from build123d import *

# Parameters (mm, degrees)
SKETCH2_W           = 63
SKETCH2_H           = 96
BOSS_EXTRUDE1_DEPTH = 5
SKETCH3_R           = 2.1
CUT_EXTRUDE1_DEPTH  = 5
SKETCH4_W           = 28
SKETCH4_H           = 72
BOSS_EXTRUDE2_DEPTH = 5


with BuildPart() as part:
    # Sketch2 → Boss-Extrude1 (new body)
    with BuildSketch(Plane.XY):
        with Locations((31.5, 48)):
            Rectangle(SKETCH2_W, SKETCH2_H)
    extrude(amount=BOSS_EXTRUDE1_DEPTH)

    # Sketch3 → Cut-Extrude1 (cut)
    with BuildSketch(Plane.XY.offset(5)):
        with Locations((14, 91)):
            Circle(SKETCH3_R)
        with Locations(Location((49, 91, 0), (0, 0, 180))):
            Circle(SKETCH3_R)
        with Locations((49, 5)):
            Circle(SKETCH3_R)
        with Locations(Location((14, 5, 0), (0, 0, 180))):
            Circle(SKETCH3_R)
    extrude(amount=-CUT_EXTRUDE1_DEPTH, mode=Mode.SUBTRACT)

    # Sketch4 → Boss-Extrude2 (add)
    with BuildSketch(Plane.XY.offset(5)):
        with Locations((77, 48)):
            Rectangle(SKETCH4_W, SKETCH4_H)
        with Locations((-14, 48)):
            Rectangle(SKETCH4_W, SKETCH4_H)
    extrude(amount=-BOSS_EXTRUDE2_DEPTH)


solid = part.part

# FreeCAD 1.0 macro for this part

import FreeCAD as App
import Part
import Sketcher
from FreeCAD import Vector
Q = App.Units.Quantity

doc = App.newDocument("Part")
body = doc.addObject("PartDesign::Body", "Body")

# Sketch on XY plane
sketch1 = doc.addObject("Sketcher::SketchObject", "Sketch")
body.addObject(sketch1)
sketch1.AttachmentSupport = (doc.XY_Plane, [""])
sketch1.MapMode = "FlatFace"
sketch1.addGeometry([
    Part.LineSegment(Vector(0, 96, 0), Vector(0, 0, 0)),
    Part.LineSegment(Vector(0, 0, 0), Vector(63, 0, 0)),
    Part.LineSegment(Vector(63, 0, 0), Vector(63, 96, 0)),
    Part.LineSegment(Vector(63, 96, 0), Vector(0, 96, 0)),
], False)
sketch1.addConstraint([
    Sketcher.Constraint("Coincident", 0, 2, 1, 1),
    Sketcher.Constraint("Coincident", 1, 2, 2, 1),
    Sketcher.Constraint("Coincident", 2, 2, 3, 1),
    Sketcher.Constraint("Coincident", 3, 2, 0, 1),
    Sketcher.Constraint("Vertical", 0),
    Sketcher.Constraint("Horizontal", 1),
    Sketcher.Constraint("Vertical", 2),
    Sketcher.Constraint("Horizontal", 3),
    Sketcher.Constraint("Coincident", 0, 2, -1, 1),
    Sketcher.Constraint("DistanceX", 1, 1, 1, 2, Q("63 mm")),
    Sketcher.Constraint("DistanceY", 0, 2, 0, 1, Q("96 mm")),
])
pad1 = doc.addObject("PartDesign::Pad", "Pad")
body.addObject(pad1)
pad1.Profile = sketch1
pad1.Length = 5

# Sketch on XY plane
sketch2 = doc.addObject("Sketcher::SketchObject", "Sketch001")
body.addObject(sketch2)
sketch2.AttachmentSupport = (doc.XY_Plane, [""])
sketch2.MapMode = "FlatFace"
sketch2.AttachmentOffset = App.Placement(Vector(0, 0, 5), App.Rotation())
sketch2.addGeometry([
    Part.Circle(Vector(14, 91, 0), Vector(0, 0, 1), 2.1),
    Part.Circle(Vector(49, 91, 0), Vector(0, 0, 1), 2.1),
    Part.Circle(Vector(49, 5, 0), Vector(0, 0, 1), 2.1),
    Part.Circle(Vector(14, 5, 0), Vector(0, 0, 1), 2.1),
], False)
sketch2.addConstraint([
    Sketcher.Constraint("Equal", 0, 1),
    Sketcher.Constraint("Equal", 1, 2),
    Sketcher.Constraint("Equal", 2, 3),
    Sketcher.Constraint("Horizontal", 0, 3, 1, 3),
    Sketcher.Constraint("Horizontal", 2, 3, 3, 3),
    Sketcher.Constraint("Vertical", 1, 3, 2, 3),
    Sketcher.Constraint("Vertical", 0, 3, 3, 3),
    Sketcher.Constraint("Diameter", 0, Q("4.2 mm")),
    Sketcher.Constraint("DistanceX", -1, 1, 0, 3, Q("14 mm")),
    Sketcher.Constraint("DistanceY", -1, 1, 0, 3, Q("91 mm")),
    Sketcher.Constraint("DistanceX", -1, 1, 1, 3, Q("49 mm")),
    Sketcher.Constraint("DistanceY", -1, 1, 2, 3, Q("5 mm")),
])
pocket1 = doc.addObject("PartDesign::Pocket", "Pocket")
body.addObject(pocket1)
pocket1.Profile = sketch2
pocket1.Length = 5

# Sketch on XY plane
sketch3 = doc.addObject("Sketcher::SketchObject", "Sketch002")
body.addObject(sketch3)
sketch3.AttachmentSupport = (doc.XY_Plane, [""])
sketch3.MapMode = "FlatFace"
sketch3.AttachmentOffset = App.Placement(Vector(0, 0, 5), App.Rotation())
sketch3.addGeometry([
    Part.LineSegment(Vector(63, 84, 0), Vector(63, 12, 0)),  # 0
    Part.LineSegment(Vector(63, 12, 0), Vector(91, 12, 0)),  # 1
    Part.LineSegment(Vector(91, 12, 0), Vector(91, 84, 0)),  # 2
    Part.LineSegment(Vector(91, 84, 0), Vector(63, 84, 0)),  # 3
    Part.LineSegment(Vector(-28, 84, 0), Vector(-28, 12, 0)),  # 4
    Part.LineSegment(Vector(-28, 12, 0), Vector(0, 12, 0)),  # 5
    Part.LineSegment(Vector(0, 12, 0), Vector(0, 84, 0)),  # 6
    Part.LineSegment(Vector(0, 84, 0), Vector(-28, 84, 0)),  # 7
], False)
sketch3.addConstraint([
    Sketcher.Constraint("Coincident", 0, 2, 1, 1),
    Sketcher.Constraint("Coincident", 1, 2, 2, 1),
    Sketcher.Constraint("Coincident", 2, 2, 3, 1),
    Sketcher.Constraint("Coincident", 3, 2, 0, 1),
    Sketcher.Constraint("Coincident", 4, 2, 5, 1),
    Sketcher.Constraint("Coincident", 5, 2, 6, 1),
    Sketcher.Constraint("Coincident", 6, 2, 7, 1),
    Sketcher.Constraint("Coincident", 7, 2, 4, 1),
    Sketcher.Constraint("Vertical", 0),
    Sketcher.Constraint("Horizontal", 1),
    Sketcher.Constraint("Vertical", 2),
    Sketcher.Constraint("Horizontal", 3),
    Sketcher.Constraint("Vertical", 4),
    Sketcher.Constraint("Horizontal", 5),
    Sketcher.Constraint("Vertical", 6),
    Sketcher.Constraint("Horizontal", 7),
    Sketcher.Constraint("PointOnObject", 5, 2, -2),
    Sketcher.Constraint("Horizontal", 1, 2, 4, 2),
    Sketcher.Constraint("Horizontal", 3, 2, 6, 2),
    Sketcher.Constraint("Equal", 3, 5),
    Sketcher.Constraint("DistanceX", 1, 1, 1, 2, Q("28 mm")),
    Sketcher.Constraint("DistanceY", 0, 2, 0, 1, Q("72 mm")),
    Sketcher.Constraint("DistanceX", -1, 1, 0, 2, Q("63 mm")),
    Sketcher.Constraint("DistanceY", -1, 1, 0, 2, Q("12 mm")),
])
pad2 = doc.addObject("PartDesign::Pad", "Pad001")
body.addObject(pad2)
pad2.Profile = sketch3
pad2.Length = 5
pad2.Reversed = True

doc.recompute()
